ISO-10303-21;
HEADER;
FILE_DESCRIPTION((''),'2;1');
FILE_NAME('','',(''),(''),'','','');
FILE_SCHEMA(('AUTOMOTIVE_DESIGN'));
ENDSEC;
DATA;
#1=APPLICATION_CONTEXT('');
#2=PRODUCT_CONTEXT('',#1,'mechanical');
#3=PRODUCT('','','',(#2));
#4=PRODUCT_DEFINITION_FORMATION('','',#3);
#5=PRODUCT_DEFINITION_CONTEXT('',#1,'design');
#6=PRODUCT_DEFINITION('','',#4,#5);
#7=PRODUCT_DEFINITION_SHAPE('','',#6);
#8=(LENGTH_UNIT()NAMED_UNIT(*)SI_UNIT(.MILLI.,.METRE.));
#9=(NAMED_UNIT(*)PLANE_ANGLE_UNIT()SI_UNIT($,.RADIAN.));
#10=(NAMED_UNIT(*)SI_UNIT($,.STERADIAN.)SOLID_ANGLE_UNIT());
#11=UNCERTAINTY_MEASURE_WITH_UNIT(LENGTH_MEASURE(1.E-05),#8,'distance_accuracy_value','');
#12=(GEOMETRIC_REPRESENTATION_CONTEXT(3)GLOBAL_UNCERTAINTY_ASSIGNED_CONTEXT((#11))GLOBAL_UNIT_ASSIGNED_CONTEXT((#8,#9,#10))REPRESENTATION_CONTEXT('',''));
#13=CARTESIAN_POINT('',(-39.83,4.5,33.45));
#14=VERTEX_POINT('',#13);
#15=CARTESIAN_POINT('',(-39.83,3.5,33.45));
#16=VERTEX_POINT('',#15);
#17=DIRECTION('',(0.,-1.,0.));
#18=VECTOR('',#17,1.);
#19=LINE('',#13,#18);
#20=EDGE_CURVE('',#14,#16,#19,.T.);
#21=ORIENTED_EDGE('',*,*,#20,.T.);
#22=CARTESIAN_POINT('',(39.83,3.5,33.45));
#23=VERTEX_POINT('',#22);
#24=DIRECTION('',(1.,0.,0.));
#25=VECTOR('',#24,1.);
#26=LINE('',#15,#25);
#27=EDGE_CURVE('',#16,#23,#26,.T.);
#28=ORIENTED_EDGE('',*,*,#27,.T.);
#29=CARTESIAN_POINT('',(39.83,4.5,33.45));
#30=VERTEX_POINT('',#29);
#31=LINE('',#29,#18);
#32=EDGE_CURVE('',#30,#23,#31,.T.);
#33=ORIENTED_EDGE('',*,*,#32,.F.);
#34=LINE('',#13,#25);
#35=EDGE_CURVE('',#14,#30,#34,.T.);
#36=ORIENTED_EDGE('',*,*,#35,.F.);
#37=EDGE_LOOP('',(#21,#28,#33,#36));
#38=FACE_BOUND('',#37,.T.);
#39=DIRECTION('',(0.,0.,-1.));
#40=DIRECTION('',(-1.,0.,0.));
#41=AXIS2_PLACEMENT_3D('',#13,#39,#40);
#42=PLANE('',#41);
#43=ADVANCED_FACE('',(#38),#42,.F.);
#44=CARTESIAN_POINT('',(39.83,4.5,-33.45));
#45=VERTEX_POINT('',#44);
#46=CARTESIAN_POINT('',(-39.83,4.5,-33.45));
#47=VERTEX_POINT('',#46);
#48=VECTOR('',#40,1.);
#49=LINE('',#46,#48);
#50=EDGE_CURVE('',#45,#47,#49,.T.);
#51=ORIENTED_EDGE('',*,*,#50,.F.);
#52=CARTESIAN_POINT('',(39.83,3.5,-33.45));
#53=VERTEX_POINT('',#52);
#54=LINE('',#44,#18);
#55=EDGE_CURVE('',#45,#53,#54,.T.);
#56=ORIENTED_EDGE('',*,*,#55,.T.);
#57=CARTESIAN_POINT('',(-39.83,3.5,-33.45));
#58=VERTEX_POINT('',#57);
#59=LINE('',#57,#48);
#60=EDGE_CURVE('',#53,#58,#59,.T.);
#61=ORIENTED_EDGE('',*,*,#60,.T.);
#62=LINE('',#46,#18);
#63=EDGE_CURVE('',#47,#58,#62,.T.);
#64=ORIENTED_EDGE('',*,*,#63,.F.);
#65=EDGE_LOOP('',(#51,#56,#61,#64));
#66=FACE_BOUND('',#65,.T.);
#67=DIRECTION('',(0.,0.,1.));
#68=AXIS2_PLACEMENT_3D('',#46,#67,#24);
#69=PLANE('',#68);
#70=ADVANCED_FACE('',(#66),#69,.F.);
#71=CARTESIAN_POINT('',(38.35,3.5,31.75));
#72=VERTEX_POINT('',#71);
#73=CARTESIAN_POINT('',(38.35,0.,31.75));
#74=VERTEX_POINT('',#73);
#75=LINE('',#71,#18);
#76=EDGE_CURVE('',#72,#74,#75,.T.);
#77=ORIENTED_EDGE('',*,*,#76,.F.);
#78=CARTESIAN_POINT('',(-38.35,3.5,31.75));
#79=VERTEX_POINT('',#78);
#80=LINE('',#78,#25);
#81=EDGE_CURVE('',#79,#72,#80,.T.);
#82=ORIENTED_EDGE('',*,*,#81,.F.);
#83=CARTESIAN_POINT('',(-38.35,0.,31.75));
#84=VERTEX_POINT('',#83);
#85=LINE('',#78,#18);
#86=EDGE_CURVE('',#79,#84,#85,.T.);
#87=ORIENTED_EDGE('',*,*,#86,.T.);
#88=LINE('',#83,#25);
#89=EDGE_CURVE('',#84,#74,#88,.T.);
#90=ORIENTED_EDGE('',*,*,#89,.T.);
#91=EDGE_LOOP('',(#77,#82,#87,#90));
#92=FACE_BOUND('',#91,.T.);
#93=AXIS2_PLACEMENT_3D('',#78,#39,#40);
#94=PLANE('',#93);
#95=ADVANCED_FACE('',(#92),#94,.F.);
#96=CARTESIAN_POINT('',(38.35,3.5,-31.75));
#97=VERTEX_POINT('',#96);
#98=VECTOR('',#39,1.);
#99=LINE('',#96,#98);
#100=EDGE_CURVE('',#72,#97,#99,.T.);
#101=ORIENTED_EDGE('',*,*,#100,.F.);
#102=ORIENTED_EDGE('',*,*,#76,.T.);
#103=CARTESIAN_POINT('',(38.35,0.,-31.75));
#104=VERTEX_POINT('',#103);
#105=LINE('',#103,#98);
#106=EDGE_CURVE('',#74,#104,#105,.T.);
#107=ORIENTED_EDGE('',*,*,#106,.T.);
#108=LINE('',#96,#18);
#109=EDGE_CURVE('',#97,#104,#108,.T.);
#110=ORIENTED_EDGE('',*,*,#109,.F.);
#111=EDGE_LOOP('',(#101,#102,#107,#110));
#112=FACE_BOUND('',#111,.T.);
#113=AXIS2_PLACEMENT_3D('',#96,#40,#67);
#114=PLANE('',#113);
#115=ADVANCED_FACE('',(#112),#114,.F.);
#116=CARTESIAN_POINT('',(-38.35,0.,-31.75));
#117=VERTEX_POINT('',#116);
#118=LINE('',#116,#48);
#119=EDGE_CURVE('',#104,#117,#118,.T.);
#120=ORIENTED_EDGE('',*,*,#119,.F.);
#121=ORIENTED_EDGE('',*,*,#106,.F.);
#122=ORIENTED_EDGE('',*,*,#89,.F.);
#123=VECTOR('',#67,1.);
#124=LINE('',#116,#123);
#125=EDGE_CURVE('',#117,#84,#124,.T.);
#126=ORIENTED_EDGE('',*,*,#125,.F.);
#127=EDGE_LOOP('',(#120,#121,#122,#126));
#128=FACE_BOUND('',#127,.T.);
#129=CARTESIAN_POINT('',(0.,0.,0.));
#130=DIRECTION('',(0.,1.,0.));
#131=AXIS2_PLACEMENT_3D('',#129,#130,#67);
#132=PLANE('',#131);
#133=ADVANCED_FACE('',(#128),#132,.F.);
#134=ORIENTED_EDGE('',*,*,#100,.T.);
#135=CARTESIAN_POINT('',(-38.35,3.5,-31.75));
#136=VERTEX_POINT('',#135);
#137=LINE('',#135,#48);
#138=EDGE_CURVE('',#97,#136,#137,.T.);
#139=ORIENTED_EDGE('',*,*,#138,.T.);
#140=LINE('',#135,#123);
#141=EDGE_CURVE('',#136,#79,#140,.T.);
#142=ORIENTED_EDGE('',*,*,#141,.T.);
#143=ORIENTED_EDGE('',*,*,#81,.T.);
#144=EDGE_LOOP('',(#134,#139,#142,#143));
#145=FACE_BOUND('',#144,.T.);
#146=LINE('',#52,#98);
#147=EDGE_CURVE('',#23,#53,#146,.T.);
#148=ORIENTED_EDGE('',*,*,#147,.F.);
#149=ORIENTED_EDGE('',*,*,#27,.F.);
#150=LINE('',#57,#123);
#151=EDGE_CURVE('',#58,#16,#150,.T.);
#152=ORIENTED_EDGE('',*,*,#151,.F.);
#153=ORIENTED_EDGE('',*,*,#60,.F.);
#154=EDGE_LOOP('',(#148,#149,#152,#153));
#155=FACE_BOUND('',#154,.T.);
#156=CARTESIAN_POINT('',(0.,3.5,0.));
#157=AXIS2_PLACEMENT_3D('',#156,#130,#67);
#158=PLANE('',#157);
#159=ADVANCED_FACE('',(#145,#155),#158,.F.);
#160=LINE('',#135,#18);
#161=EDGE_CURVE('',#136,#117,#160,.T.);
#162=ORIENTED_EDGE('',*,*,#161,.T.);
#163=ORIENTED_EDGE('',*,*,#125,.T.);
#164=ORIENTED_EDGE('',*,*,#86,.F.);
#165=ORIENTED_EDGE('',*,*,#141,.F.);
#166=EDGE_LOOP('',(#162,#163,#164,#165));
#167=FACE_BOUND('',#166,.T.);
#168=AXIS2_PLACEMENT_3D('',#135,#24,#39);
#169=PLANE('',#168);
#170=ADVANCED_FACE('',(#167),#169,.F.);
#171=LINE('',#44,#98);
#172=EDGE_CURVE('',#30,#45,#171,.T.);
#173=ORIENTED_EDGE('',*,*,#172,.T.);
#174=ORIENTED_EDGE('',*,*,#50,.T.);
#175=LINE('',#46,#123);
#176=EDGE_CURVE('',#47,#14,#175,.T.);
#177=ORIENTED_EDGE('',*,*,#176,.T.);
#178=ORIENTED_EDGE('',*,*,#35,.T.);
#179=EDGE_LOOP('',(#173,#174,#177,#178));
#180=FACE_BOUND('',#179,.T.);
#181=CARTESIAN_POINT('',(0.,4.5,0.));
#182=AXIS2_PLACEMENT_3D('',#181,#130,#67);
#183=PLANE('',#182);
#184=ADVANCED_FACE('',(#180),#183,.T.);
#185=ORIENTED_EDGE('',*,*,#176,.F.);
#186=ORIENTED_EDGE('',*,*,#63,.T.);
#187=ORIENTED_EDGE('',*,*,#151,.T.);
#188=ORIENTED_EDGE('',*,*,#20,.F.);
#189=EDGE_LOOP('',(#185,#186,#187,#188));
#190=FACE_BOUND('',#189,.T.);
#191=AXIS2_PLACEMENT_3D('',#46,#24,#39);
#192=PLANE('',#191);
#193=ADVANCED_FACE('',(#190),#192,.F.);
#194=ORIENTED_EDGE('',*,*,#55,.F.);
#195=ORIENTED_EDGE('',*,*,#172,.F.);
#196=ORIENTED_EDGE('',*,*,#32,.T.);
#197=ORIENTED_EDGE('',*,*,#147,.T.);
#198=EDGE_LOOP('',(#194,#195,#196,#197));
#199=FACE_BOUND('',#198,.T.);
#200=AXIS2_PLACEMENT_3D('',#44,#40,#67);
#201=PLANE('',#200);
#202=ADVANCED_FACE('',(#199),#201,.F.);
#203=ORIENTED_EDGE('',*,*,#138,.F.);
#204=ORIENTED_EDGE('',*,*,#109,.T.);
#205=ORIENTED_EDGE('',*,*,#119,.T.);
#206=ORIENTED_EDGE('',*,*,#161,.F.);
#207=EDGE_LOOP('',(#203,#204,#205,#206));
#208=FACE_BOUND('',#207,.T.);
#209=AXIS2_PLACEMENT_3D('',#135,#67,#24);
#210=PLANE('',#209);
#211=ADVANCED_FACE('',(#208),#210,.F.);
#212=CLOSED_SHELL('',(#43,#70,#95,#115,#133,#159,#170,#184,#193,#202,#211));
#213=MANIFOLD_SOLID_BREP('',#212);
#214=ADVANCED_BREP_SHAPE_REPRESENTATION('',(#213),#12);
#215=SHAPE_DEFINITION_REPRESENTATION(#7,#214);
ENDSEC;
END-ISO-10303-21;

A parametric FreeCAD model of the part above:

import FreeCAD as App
import Part
import Sketcher

V = App.Vector

doc = App.newDocument("Part")
params = doc.addObject("Spreadsheet::Sheet", "Params")
for row, (alias, value) in enumerate([
    ("sketch1_width", "76.7 mm"),
    ("sketch1_height", "63.5 mm"),
    ("pad1_length", "3.5 mm"),
    ("sketch2_height", "66.9 mm"),
    ("sketch2_width", "79.66 mm"),
    ("pad2_length", "1 mm"),
], start=1):
    params.set(f"A{row}", alias)
    params.set(f"B{row}", "=" + value)
    params.setAlias(f"B{row}", alias)

body = doc.addObject("PartDesign::Body", "Body")

sketch1 = doc.addObject("Sketcher::SketchObject", "Sketch")
body.addObject(sketch1)
sketch1.AttachmentSupport = (doc.XZ_Plane, [""])
sketch1.MapMode = "FlatFace"
sketch1.addGeometry(Part.LineSegment(V(-38.35, -31.75, 0), V(-38.35, 31.75, 0)), False)
sketch1.addGeometry(Part.LineSegment(V(-38.35, 31.75, 0), V(38.35, 31.75, 0)), False)
sketch1.addGeometry(Part.LineSegment(V(38.35, 31.75, 0), V(38.35, -31.75, 0)), False)
sketch1.addGeometry(Part.LineSegment(V(38.35, -31.75, 0), V(-38.35, -31.75, 0)), False)
sketch1.addConstraint(Sketcher.Constraint("Coincident", 0, 2, 1, 1))
sketch1.addConstraint(Sketcher.Constraint("Coincident", 1, 2, 2, 1))
sketch1.addConstraint(Sketcher.Constraint("Coincident", 2, 2, 3, 1))
sketch1.addConstraint(Sketcher.Constraint("Coincident", 3, 2, 0, 1))
sketch1.addConstraint(Sketcher.Constraint("Vertical", 0))
sketch1.addConstraint(Sketcher.Constraint("Horizontal", 1))
sketch1.addConstraint(Sketcher.Constraint("Vertical", 2))
sketch1.addConstraint(Sketcher.Constraint("Horizontal", 3))
sketch1.addConstraint(Sketcher.Constraint("Symmetric", 0, 2, 2, 2, -1, 1))
sketch1.addConstraint(Sketcher.Constraint("DistanceX", 1, 1, 1, 2, 76.7))
sketch1.addConstraint(Sketcher.Constraint("DistanceY", 0, 1, 0, 2, 63.5))
sketch1.setExpression("Constraints[9]", "Params.sketch1_width")
sketch1.setExpression("Constraints[10]", "Params.sketch1_height")
pad1 = doc.addObject("PartDesign::Pad", "Pad")
body.addObject(pad1)
pad1.Profile = sketch1
pad1.setExpression("Length", "Params.pad1_length")
pad1.Reversed = True

sketch2 = doc.addObject("Sketcher::SketchObject", "Sketch001")
body.addObject(sketch2)
sketch2.AttachmentSupport = (doc.XZ_Plane, [""])
sketch2.MapMode = "FlatFace"
sketch2.AttachmentOffset = App.Placement(V(0, 0, -3.5), App.Rotation())
sketch2.addGeometry(Part.LineSegment(V(-39.83, -33.45, 0), V(-39.83, 33.45, 0)), False)
sketch2.addGeometry(Part.LineSegment(V(-39.83, 33.45, 0), V(39.83, 33.45, 0)), False)
sketch2.addGeometry(Part.LineSegment(V(39.83, 33.45, 0), V(39.83, -33.45, 0)), False)
sketch2.addGeometry(Part.LineSegment(V(39.83, -33.45, 0), V(-39.83, -33.45, 0)), False)
sketch2.addConstraint(Sketcher.Constraint("Coincident", 0, 2, 1, 1))
sketch2.addConstraint(Sketcher.Constraint("Coincident", 1, 2, 2, 1))
sketch2.addConstraint(Sketcher.Constraint("Coincident", 2, 2, 3, 1))
sketch2.addConstraint(Sketcher.Constraint("Coincident", 3, 2, 0, 1))
sketch2.addConstraint(Sketcher.Constraint("Vertical", 0))
sketch2.addConstraint(Sketcher.Constraint("Horizontal", 1))
sketch2.addConstraint(Sketcher.Constraint("Vertical", 2))
sketch2.addConstraint(Sketcher.Constraint("Horizontal", 3))
sketch2.addConstraint(Sketcher.Constraint("Symmetric", 0, 2, 2, 2, -1, 1))
sketch2.addConstraint(Sketcher.Constraint("DistanceY", 0, 1, 0, 2, 66.9))
sketch2.addConstraint(Sketcher.Constraint("DistanceX", 1, 1, 1, 2, 79.66))
sketch2.setExpression("Constraints[9]", "Params.sketch2_height")
sketch2.setExpression("Constraints[10]", "Params.sketch2_width")
pad2 = doc.addObject("PartDesign::Pad", "Pad001")
body.addObject(pad2)
pad2.Profile = sketch2
pad2.setExpression("Length", "Params.pad2_length")
pad2.Reversed = True

doc.recompute()
